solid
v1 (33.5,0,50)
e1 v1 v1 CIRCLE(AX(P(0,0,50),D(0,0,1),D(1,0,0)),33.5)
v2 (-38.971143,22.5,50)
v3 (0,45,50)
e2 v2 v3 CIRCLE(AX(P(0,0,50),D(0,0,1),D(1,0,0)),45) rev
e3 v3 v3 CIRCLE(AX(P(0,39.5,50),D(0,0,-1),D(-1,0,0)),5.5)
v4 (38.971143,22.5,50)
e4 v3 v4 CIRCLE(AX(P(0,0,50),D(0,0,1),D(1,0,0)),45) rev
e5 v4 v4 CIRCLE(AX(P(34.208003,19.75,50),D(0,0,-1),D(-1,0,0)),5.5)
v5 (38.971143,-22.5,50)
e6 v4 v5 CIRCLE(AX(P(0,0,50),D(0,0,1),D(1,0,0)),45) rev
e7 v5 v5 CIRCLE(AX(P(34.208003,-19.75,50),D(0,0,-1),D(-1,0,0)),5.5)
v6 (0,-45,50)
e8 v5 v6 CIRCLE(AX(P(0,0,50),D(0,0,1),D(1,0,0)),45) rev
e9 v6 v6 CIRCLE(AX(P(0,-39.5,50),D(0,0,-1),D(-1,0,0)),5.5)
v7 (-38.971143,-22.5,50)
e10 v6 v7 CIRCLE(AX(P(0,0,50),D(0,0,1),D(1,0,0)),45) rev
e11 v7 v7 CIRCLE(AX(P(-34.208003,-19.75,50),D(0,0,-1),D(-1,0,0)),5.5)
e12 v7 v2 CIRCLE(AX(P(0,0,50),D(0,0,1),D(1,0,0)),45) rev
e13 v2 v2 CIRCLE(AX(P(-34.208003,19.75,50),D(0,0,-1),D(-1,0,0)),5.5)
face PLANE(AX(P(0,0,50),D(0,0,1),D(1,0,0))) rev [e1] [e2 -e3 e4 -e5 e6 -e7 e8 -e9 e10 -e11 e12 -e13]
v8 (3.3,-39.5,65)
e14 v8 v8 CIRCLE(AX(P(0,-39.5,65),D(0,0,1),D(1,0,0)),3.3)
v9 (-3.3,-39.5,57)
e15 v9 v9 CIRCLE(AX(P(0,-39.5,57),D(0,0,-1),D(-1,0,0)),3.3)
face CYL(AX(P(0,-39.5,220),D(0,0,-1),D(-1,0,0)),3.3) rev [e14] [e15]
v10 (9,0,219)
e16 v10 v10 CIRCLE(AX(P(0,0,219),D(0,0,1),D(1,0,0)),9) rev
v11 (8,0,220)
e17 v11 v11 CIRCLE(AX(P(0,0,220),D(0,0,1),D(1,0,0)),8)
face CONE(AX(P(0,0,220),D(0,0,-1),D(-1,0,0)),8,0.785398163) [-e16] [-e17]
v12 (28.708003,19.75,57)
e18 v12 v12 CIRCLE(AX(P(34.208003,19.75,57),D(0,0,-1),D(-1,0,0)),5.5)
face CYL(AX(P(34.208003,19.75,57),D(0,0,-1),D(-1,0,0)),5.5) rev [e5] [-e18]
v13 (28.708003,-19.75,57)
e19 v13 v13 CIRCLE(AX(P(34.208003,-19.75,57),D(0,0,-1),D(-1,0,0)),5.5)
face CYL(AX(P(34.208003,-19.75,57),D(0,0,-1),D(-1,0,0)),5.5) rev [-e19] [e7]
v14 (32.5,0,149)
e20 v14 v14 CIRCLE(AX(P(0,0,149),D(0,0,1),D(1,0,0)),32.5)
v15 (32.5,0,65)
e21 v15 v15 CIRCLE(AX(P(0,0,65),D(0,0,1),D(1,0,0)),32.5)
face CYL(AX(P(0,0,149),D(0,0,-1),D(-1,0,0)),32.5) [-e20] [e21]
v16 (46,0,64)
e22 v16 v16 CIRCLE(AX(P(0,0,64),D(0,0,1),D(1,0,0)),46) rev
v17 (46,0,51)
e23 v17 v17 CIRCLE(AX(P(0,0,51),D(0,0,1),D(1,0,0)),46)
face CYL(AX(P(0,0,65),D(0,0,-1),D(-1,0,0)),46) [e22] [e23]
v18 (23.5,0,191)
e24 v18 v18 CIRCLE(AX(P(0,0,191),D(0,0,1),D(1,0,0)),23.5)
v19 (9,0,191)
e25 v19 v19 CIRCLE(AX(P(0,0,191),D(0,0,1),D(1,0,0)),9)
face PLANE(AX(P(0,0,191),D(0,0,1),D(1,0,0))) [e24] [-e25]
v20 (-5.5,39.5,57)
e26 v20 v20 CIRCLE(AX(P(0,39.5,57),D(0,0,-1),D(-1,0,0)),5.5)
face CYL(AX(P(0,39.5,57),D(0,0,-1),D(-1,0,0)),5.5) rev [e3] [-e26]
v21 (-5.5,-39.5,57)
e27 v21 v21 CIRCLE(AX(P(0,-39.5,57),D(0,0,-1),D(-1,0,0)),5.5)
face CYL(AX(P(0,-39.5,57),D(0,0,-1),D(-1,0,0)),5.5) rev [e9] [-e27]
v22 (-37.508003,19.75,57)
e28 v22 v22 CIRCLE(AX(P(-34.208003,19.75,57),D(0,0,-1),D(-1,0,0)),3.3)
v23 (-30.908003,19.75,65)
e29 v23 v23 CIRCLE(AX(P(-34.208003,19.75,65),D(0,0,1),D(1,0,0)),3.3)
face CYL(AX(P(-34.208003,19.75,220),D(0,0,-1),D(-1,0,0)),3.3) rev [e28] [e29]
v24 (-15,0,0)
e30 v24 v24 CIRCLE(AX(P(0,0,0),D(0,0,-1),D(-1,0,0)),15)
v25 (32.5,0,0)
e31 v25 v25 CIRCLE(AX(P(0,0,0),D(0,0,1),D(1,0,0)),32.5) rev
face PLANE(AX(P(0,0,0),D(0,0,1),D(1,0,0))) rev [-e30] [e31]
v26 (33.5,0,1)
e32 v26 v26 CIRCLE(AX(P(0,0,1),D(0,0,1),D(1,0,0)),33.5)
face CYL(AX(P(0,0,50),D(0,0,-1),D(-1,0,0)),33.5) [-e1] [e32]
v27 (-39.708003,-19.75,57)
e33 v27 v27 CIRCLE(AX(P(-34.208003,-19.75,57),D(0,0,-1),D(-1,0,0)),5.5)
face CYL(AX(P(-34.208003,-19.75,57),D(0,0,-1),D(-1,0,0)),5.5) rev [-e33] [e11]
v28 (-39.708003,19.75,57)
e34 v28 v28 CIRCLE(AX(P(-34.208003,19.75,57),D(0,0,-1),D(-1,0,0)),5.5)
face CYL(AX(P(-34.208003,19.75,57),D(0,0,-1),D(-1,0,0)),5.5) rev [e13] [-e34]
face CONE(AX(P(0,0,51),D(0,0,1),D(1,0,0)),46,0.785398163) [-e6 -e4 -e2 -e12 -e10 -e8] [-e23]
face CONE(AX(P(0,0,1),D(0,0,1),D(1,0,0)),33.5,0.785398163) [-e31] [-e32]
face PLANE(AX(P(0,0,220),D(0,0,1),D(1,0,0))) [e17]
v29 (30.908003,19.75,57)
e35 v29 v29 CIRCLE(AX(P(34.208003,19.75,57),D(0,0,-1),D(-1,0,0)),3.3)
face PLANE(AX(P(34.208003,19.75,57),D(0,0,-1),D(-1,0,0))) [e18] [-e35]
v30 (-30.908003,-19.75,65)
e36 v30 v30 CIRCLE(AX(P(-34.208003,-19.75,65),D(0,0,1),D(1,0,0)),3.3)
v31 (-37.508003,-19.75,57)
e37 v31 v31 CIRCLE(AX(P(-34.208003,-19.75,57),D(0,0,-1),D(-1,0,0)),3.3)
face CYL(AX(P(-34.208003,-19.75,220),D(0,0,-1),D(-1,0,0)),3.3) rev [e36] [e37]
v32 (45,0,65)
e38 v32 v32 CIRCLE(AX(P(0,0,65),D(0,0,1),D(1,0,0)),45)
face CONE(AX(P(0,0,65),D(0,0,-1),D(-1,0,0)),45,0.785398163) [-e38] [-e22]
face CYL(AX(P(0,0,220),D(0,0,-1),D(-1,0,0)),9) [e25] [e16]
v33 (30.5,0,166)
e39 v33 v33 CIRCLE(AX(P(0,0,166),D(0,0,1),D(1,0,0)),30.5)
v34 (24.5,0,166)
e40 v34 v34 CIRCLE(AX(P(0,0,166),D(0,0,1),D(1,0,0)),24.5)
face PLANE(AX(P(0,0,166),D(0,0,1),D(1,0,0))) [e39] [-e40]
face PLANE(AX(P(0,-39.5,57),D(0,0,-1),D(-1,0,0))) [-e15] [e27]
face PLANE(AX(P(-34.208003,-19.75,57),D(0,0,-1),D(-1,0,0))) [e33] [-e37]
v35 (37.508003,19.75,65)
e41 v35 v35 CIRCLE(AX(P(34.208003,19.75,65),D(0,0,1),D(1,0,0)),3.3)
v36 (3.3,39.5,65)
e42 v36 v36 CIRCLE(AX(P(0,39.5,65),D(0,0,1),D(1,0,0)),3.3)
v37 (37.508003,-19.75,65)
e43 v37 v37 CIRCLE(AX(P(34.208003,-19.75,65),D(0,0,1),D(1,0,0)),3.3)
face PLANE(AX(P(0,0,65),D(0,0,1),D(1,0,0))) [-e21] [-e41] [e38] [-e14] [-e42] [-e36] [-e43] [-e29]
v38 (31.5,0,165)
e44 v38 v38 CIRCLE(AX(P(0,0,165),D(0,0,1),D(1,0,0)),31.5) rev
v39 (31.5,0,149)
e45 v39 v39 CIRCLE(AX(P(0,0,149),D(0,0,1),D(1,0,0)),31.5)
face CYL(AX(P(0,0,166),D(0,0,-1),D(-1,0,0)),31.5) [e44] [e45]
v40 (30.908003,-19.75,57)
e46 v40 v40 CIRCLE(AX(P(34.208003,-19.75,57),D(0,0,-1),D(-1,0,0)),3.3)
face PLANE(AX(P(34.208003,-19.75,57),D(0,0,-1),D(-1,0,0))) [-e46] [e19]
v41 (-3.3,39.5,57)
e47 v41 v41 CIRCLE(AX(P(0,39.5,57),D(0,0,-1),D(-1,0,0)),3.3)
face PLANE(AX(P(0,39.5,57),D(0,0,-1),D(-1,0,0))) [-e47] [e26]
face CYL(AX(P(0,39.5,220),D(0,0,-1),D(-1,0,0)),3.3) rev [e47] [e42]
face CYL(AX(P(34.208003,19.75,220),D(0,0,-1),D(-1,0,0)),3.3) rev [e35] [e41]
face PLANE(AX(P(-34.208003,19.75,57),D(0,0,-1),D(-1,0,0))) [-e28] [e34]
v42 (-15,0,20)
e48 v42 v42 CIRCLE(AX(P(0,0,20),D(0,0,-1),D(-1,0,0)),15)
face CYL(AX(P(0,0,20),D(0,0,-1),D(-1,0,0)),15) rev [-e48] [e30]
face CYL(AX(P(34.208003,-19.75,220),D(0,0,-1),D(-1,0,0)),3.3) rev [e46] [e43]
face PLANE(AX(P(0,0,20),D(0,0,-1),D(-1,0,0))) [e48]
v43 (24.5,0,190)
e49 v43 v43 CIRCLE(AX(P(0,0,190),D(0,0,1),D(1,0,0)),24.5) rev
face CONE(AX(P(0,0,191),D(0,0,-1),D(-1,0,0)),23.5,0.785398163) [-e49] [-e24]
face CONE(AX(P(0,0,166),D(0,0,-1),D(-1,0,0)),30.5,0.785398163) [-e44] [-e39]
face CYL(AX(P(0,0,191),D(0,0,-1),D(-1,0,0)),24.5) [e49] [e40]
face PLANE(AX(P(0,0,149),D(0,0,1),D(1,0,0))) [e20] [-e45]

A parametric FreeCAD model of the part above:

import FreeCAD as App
import Part
import Sketcher
from FreeCAD import Vector
Q = App.Units.Quantity


def edges_at(feature, points):
    """Names of the edges that pass closest to the given points."""
    edges = feature.Shape.Edges
    near = lambda p: min(range(len(edges)), key=lambda i: edges[i].distToShape(Part.Vertex(*p))[0])
    return sorted({f"Edge{near(p) + 1}" for p in points})

doc = App.newDocument("Part")
body = doc.addObject("PartDesign::Body", "Body")

# Sketch on XY plane
sketch1 = doc.addObject("Sketcher::SketchObject", "Sketch")
body.addObject(sketch1)
sketch1.AttachmentSupport = (doc.XY_Plane, [""])
sketch1.MapMode = "FlatFace"
sketch1.addGeometry(Part.Circle(Vector(0, 0, 0), Vector(0, 0, 1), 33.5), False)
sketch1.addConstraint([
    Sketcher.Constraint("Coincident", 0, 3, -1, 1),
    Sketcher.Constraint("Diameter", 0, Q("67 mm")),
])
pad1 = doc.addObject("PartDesign::Pad", "Pad")
body.addObject(pad1)
pad1.Profile = sketch1
pad1.Length = 50

# Sketch on XY plane
sketch2 = doc.addObject("Sketcher::SketchObject", "Sketch001")
body.addObject(sketch2)
sketch2.AttachmentSupport = (doc.XY_Plane, [""])
sketch2.MapMode = "FlatFace"
sketch2.AttachmentOffset = App.Placement(Vector(0, 0, 50), App.Rotation())
sketch2.addGeometry(Part.Circle(Vector(0, 0, 0), Vector(0, 0, 1), 46), False)
sketch2.addConstraint([
    Sketcher.Constraint("Coincident", 0, 3, -1, 1),
    Sketcher.Constraint("Diameter", 0, Q("92 mm")),
])
pad2 = doc.addObject("PartDesign::Pad", "Pad001")
body.addObject(pad2)
pad2.Profile = sketch2
pad2.Length = 15

# Sketch on XY plane
sketch3 = doc.addObject("Sketcher::SketchObject", "Sketch002")
body.addObject(sketch3)
sketch3.AttachmentSupport = (doc.XY_Plane, [""])
sketch3.MapMode = "FlatFace"
sketch3.AttachmentOffset = App.Placement(Vector(0, 0, 65), App.Rotation())
sketch3.addGeometry(Part.Circle(Vector(0, 0, 0), Vector(0, 0, 1), 32.5), False)
sketch3.addConstraint([
    Sketcher.Constraint("Coincident", 0, 3, -1, 1),
    Sketcher.Constraint("Diameter", 0, Q("65 mm")),
])
pad3 = doc.addObject("PartDesign::Pad", "Pad002")
body.addObject(pad3)
pad3.Profile = sketch3
pad3.Length = 84

# Sketch on XY plane
sketch4 = doc.addObject("Sketcher::SketchObject", "Sketch003")
body.addObject(sketch4)
sketch4.AttachmentSupport = (doc.XY_Plane, [""])
sketch4.MapMode = "FlatFace"
sketch4.AttachmentOffset = App.Placement(Vector(0, 0, 149), App.Rotation())
sketch4.addGeometry(Part.Circle(Vector(0, 0, 0), Vector(0, 0, 1), 31.5), False)
sketch4.addConstraint([
    Sketcher.Constraint("Coincident", 0, 3, -1, 1),
    Sketcher.Constraint("Diameter", 0, Q("63 mm")),
])
pad4 = doc.addObject("PartDesign::Pad", "Pad003")
body.addObject(pad4)
pad4.Profile = sketch4
pad4.Length = 17

# Sketch on XY plane
sketch5 = doc.addObject("Sketcher::SketchObject", "Sketch004")
body.addObject(sketch5)
sketch5.AttachmentSupport = (doc.XY_Plane, [""])
sketch5.MapMode = "FlatFace"
sketch5.AttachmentOffset = App.Placement(Vector(0, 0, 166), App.Rotation())
sketch5.addGeometry(Part.Circle(Vector(0, 0, 0), Vector(0, 0, 1), 24.5), False)
sketch5.addConstraint([
    Sketcher.Constraint("Coincident", 0, 3, -1, 1),
    Sketcher.Constraint("Diameter", 0, Q("49 mm")),
])
pad5 = doc.addObject("PartDesign::Pad", "Pad004")
body.addObject(pad5)
pad5.Profile = sketch5
pad5.Length = 25

# Sketch on XY plane
sketch6 = doc.addObject("Sketcher::SketchObject", "Sketch005")
body.addObject(sketch6)
sketch6.AttachmentSupport = (doc.XY_Plane, [""])
sketch6.MapMode = "FlatFace"
sketch6.AttachmentOffset = App.Placement(Vector(0, 0, 191), App.Rotation())
sketch6.addGeometry(Part.Circle(Vector(0, 0, 0), Vector(0, 0, 1), 9), False)
sketch6.addConstraint([
    Sketcher.Constraint("Coincident", 0, 3, -1, 1),
    Sketcher.Constraint("Diameter", 0, Q("18 mm")),
])
pad6 = doc.addObject("PartDesign::Pad", "Pad005")
body.addObject(pad6)
pad6.Profile = sketch6
pad6.Length = 29

# Sketch on XY plane
sketch7 = doc.addObject("Sketcher::SketchObject", "Sketch006")
body.addObject(sketch7)
sketch7.AttachmentSupport = (doc.XY_Plane, [""])
sketch7.MapMode = "FlatFace"
sketch7.addGeometry(Part.Circle(Vector(0, 0, 0), Vector(0, 0, 1), 15), False)
sketch7.addConstraint([
    Sketcher.Constraint("Coincident", 0, 3, -1, 1),
    Sketcher.Constraint("Diameter", 0, Q("30 mm")),
])
pocket1 = doc.addObject("PartDesign::Pocket", "Pocket")
body.addObject(pocket1)
pocket1.Profile = sketch7
pocket1.Length = 20
pocket1.Reversed = True
doc.recompute()

chamfer = doc.addObject("PartDesign::Chamfer", "Chamfer")
body.addObject(chamfer)
chamfer.Base = (pocket1, edges_at(pocket1, [
    (-31.5, 0, 166),
    (-24.5, 0, 191),
    (-33.5, 0, 0),
    (-9, 0, 220),
    (-46, 0, 50),
    (-46, 0, 65),
]))
chamfer.Size = 1

# Sketch on XY plane
sketch8 = doc.addObject("Sketcher::SketchObject", "Sketch007")
body.addObject(sketch8)
sketch8.AttachmentSupport = (doc.XY_Plane, [""])
sketch8.MapMode = "FlatFace"
sketch8.AttachmentOffset = App.Placement(Vector(0, 0, 50), App.Rotation())
sketch8.addGeometry([
    Part.Circle(Vector(0, 39.5, 0), Vector(0, 0, 1), 5.5),  # 0
    Part.Circle(Vector(-34.208003, 19.75, 0), Vector(0, 0, 1), 5.5),  # 1
    Part.Circle(Vector(-34.208003, -19.75, 0), Vector(0, 0, 1), 5.5),  # 2
    Part.Circle(Vector(0, -39.5, 0), Vector(0, 0, 1), 5.5),  # 3
    Part.Circle(Vector(34.208003, -19.75, 0), Vector(0, 0, 1), 5.5),  # 4
    Part.Circle(Vector(34.208003, 19.75, 0), Vector(0, 0, 1), 5.5),  # 5
], False)
sketch8.addConstraint([
    Sketcher.Constraint("Equal", 0, 1),
    Sketcher.Constraint("Equal", 1, 2),
    Sketcher.Constraint("Equal", 2, 3),
    Sketcher.Constraint("Equal", 3, 4),
    Sketcher.Constraint("Equal", 4, 5),
    Sketcher.Constraint("Symmetric", 0, 3, 3, 3, -1, 1),
    Sketcher.Constraint("Symmetric", 1, 3, 4, 3, -1, 1),
    Sketcher.Constraint("Symmetric", 2, 3, 5, 3, -1, 1),
    Sketcher.Constraint("Symmetric", 2, 3, 4, 3, -2),
    Sketcher.Constraint("PointOnObject", 0, 3, -2),
    Sketcher.Constraint("Diameter", 0, Q("11 mm")),
    Sketcher.Constraint("DistanceY", 3, 3, 0, 3, Q("79 mm")),
    Sketcher.Constraint("DistanceY", 2, 3, 1, 3, Q("39.5 mm")),
    Sketcher.Constraint("DistanceX", 1, 3, -1, 1, Q("34.208003 mm")),
])
pocket2 = doc.addObject("PartDesign::Pocket", "Pocket001")
body.addObject(pocket2)
pocket2.Profile = sketch8
pocket2.Length = 7
pocket2.Reversed = True

# Sketch on XY plane
sketch9 = doc.addObject("Sketcher::SketchObject", "Sketch008")
body.addObject(sketch9)
sketch9.AttachmentSupport = (doc.XY_Plane, [""])
sketch9.MapMode = "FlatFace"
sketch9.AttachmentOffset = App.Placement(Vector(0, 0, 57), App.Rotation())
sketch9.addGeometry([
    Part.Circle(Vector(0, 39.5, 0), Vector(0, 0, 1), 3.3),  # 0
    Part.Circle(Vector(-34.208003, 19.75, 0), Vector(0, 0, 1), 3.3),  # 1
    Part.Circle(Vector(-34.208003, -19.75, 0), Vector(0, 0, 1), 3.3),  # 2
    Part.Circle(Vector(0, -39.5, 0), Vector(0, 0, 1), 3.3),  # 3
    Part.Circle(Vector(34.208003, -19.75, 0), Vector(0, 0, 1), 3.3),  # 4
    Part.Circle(Vector(34.208003, 19.75, 0), Vector(0, 0, 1), 3.3),  # 5
], False)
sketch9.addConstraint([
    Sketcher.Constraint("Equal", 0, 1),
    Sketcher.Constraint("Equal", 1, 2),
    Sketcher.Constraint("Equal", 2, 3),
    Sketcher.Constraint("Equal", 3, 4),
    Sketcher.Constraint("Equal", 4, 5),
    Sketcher.Constraint("Symmetric", 0, 3, 3, 3, -1, 1),
    Sketcher.Constraint("Symmetric", 1, 3, 4, 3, -1, 1),
    Sketcher.Constraint("Symmetric", 2, 3, 5, 3, -1, 1),
    Sketcher.Constraint("Symmetric", 2, 3, 4, 3, -2),
    Sketcher.Constraint("PointOnObject", 0, 3, -2),
    Sketcher.Constraint("Diameter", 0, Q("6.6 mm")),
    Sketcher.Constraint("DistanceY", 3, 3, 0, 3, Q("79 mm")),
    Sketcher.Constraint("DistanceY", 2, 3, 1, 3, Q("39.5 mm")),
    Sketcher.Constraint("DistanceX", 1, 3, -1, 1, Q("34.208003 mm")),
])
pocket3 = doc.addObject("PartDesign::Pocket", "Pocket002")
body.addObject(pocket3)
pocket3.Profile = sketch9
pocket3.Type = "ThroughAll"
pocket3.Reversed = True

doc.recompute()
